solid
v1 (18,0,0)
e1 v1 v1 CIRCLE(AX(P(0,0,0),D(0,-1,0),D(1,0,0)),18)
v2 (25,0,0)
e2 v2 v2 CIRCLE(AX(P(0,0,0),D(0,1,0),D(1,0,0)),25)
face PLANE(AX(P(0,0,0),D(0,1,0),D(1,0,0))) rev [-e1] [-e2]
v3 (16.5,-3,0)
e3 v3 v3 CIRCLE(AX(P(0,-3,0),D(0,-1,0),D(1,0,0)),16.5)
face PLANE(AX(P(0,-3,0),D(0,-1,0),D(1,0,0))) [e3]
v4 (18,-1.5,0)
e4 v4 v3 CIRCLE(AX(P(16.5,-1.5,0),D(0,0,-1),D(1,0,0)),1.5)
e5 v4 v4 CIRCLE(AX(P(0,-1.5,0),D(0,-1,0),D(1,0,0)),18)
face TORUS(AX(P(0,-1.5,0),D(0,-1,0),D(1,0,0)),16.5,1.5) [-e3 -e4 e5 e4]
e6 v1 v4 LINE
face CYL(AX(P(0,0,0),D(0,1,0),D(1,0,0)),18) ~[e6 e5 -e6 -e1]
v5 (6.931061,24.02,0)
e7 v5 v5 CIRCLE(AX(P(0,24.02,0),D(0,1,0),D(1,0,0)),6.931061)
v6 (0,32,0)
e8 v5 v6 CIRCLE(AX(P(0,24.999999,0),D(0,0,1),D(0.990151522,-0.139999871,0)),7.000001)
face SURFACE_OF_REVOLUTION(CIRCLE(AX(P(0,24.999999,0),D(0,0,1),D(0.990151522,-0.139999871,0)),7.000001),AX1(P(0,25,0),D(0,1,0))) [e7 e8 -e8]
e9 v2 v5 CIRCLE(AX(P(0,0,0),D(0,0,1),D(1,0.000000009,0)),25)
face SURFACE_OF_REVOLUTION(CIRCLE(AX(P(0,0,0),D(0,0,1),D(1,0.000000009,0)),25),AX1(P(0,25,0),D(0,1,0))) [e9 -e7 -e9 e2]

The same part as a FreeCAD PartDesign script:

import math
import FreeCAD as App
import Part
import Sketcher
Q = App.Units.Quantity


def edges_at(feature, points):
    """Names of the edges that pass closest to the given points."""
    edges = feature.Shape.Edges
    near = lambda p: min(range(len(edges)), key=lambda i: edges[i].distToShape(Part.Vertex(*p))[0])
    return sorted({f"Edge{near(p) + 1}" for p in points})

doc = App.newDocument("Part")
body = doc.addObject("PartDesign::Body", "Body")

# Sketch on XY plane
sketch1 = body.newObject("Sketcher::SketchObject", "Sketch")
sketch1.AttachmentSupport = (doc.getObject("XY_Plane"), [""])
sketch1.MapMode = "FlatFace"
sketch1.addGeometry([
    Part.LineSegment(App.Vector(0, 0, 0), App.Vector(25, 0, 0)),
    Part.ArcOfCircle(Part.Circle(App.Vector(0, 0, 0), App.Vector(0, 0, 1), 25), math.radians(0), math.radians(74)),
    Part.ArcOfCircle(Part.Circle(App.Vector(0, 25, 0), App.Vector(0, 0, 1), 7), math.radians(-8), math.radians(90)),
    Part.LineSegment(App.Vector(0, 32, 0), App.Vector(0, 0, 0)),
], False)
sketch1.addConstraint([
    Sketcher.Constraint("Coincident", 0, 2, 1, 1),
    Sketcher.Constraint("Coincident", 1, 2, 2, 1),
    Sketcher.Constraint("Coincident", 2, 2, 3, 1),
    Sketcher.Constraint("Coincident", 3, 2, 0, 1),
    Sketcher.Constraint("Horizontal", 0),
    Sketcher.Constraint("Vertical", 3),
    Sketcher.Constraint("Coincident", 1, 3, -1, 1),
    Sketcher.Constraint("Coincident", 3, 2, -1, 1),
    Sketcher.Constraint("PointOnObject", 2, 3, -2),
    Sketcher.Constraint("Radius", 1, Q("25 mm")),
    Sketcher.Constraint("Radius", 2, Q("7.000001 mm")),
    Sketcher.Constraint("DistanceY", 3, 2, 3, 1, Q("32 mm")),
])
revolution = body.newObject("PartDesign::Revolution", "Revolution")
revolution.Profile = sketch1
revolution.ReferenceAxis = (sketch1, ["V_Axis"])
revolution.Angle = 360

# Sketch on XZ plane
sketch2 = body.newObject("Sketcher::SketchObject", "Sketch001")
sketch2.AttachmentSupport = (doc.getObject("XZ_Plane"), [""])
sketch2.MapMode = "FlatFace"
sketch2.addGeometry(Part.Circle(App.Vector(0, 0, 0), App.Vector(0, 0, 1), 18), False)
sketch2.addConstraint([
    Sketcher.Constraint("Coincident", 0, 3, -1, 1),
    Sketcher.Constraint("Diameter", 0, Q("36 mm")),
])
pad1 = body.newObject("PartDesign::Pad", "Pad")
pad1.Profile = sketch2
pad1.Length = 3
doc.recompute()

fillet = body.newObject("PartDesign::Fillet", "Fillet")
fillet.Base = (pad1, edges_at(pad1, [(-18, -3, 0)]))
fillet.Radius = 1.5

doc.recompute()
